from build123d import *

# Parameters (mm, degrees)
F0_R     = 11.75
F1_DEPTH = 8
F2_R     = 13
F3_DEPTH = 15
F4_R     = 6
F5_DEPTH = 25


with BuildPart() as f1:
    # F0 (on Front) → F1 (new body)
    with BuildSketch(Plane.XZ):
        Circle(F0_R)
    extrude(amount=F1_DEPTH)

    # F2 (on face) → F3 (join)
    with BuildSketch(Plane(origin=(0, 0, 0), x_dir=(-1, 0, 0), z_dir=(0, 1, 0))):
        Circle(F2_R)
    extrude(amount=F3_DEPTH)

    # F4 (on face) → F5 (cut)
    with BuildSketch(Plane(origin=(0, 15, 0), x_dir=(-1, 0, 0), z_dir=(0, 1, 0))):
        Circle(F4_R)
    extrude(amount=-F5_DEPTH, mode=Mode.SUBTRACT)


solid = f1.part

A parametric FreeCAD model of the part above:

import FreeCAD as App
import Part
import Sketcher

doc = App.newDocument("Part")
body = doc.addObject("PartDesign::Body", "Body")

sketch1 = body.newObject("Sketcher::SketchObject", "Sketch")
sketch1.AttachmentSupport = (doc.getObject("XZ_Plane"), [""])
sketch1.MapMode = "FlatFace"
sketch1.addGeometry(Part.Circle(App.Vector(0, 0, 0), App.Vector(0, 0, 1), 12), False)
sketch1.addConstraint([
    Sketcher.Constraint("Coincident", 0, 3, -1, 1),
    Sketcher.Constraint("Diameter", 0, 23.5),
])
pad1 = body.newObject("PartDesign::Pad", "Pad")
pad1.Profile = sketch1
pad1.Length = 8

sketch2 = body.newObject("Sketcher::SketchObject", "Sketch001")
sketch2.AttachmentSupport = (doc.getObject("XZ_Plane"), [""])
sketch2.MapMode = "FlatFace"
sketch2.addGeometry(Part.Circle(App.Vector(0, 0, 0), App.Vector(0, 0, 1), 13), False)
sketch2.addConstraint([
    Sketcher.Constraint("Coincident", 0, 3, -1, 1),
    Sketcher.Constraint("Diameter", 0, 26.0),
])
pad2 = body.newObject("PartDesign::Pad", "Pad001")
pad2.Profile = sketch2
pad2.Length = 15
pad2.Reversed = True

sketch3 = body.newObject("Sketcher::SketchObject", "Sketch002")
sketch3.AttachmentSupport = (doc.getObject("XZ_Plane"), [""])
sketch3.MapMode = "FlatFace"
sketch3.AttachmentOffset = App.Placement(App.Vector(0, 0, -15), App.Rotation())
sketch3.addGeometry(Part.Circle(App.Vector(0, 0, 0), App.Vector(0, 0, 1), 6), False)
sketch3.addConstraint([
    Sketcher.Constraint("Coincident", 0, 3, -1, 1),
    Sketcher.Constraint("Diameter", 0, 12.0),
])
pocket1 = body.newObject("PartDesign::Pocket", "Pocket")
pocket1.Profile = sketch3
pocket1.Length = 25
pocket1.Reversed = True

doc.recompute()
